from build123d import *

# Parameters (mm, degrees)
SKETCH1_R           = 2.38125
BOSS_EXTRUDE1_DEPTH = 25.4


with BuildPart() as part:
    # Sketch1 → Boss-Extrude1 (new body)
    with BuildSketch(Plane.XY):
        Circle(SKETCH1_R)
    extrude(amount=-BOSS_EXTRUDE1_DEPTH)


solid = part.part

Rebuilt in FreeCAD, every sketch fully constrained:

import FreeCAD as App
import Part
import Sketcher

V = App.Vector
Q = App.Units.Quantity

doc = App.newDocument("Part")
params = doc.addObject("Spreadsheet::Sheet", "Params")
for row, (alias, value) in enumerate([
    ("sketch1_diameter", "0.1875 in"),
    ("pad1_length", "1 in"),
], start=1):
    params.set(f"A{row}", alias)
    params.set(f"B{row}", "=" + value)
    params.setAlias(f"B{row}", alias)

body = doc.addObject("PartDesign::Body", "Body")

# Sketch on XY plane
sketch1 = doc.addObject("Sketcher::SketchObject", "Sketch")
body.addObject(sketch1)
sketch1.AttachmentSupport = (doc.XY_Plane, [""])
sketch1.MapMode = "FlatFace"
sketch1.addGeometry(Part.Circle(V(0, 0, 0), V(0, 0, 1), 2.38125), False)
sketch1.addConstraint([
    Sketcher.Constraint("Coincident", 0, 3, -1, 1),
    Sketcher.Constraint("Diameter", 0, Q("0.1875 in")),
])
sketch1.setExpression("Constraints[1]", "Params.sketch1_diameter")
pad1 = doc.addObject("PartDesign::Pad", "Pad")
body.addObject(pad1)
pad1.Profile = sketch1
pad1.setExpression("Length", "Params.pad1_length")
pad1.Reversed = True

doc.recompute()
